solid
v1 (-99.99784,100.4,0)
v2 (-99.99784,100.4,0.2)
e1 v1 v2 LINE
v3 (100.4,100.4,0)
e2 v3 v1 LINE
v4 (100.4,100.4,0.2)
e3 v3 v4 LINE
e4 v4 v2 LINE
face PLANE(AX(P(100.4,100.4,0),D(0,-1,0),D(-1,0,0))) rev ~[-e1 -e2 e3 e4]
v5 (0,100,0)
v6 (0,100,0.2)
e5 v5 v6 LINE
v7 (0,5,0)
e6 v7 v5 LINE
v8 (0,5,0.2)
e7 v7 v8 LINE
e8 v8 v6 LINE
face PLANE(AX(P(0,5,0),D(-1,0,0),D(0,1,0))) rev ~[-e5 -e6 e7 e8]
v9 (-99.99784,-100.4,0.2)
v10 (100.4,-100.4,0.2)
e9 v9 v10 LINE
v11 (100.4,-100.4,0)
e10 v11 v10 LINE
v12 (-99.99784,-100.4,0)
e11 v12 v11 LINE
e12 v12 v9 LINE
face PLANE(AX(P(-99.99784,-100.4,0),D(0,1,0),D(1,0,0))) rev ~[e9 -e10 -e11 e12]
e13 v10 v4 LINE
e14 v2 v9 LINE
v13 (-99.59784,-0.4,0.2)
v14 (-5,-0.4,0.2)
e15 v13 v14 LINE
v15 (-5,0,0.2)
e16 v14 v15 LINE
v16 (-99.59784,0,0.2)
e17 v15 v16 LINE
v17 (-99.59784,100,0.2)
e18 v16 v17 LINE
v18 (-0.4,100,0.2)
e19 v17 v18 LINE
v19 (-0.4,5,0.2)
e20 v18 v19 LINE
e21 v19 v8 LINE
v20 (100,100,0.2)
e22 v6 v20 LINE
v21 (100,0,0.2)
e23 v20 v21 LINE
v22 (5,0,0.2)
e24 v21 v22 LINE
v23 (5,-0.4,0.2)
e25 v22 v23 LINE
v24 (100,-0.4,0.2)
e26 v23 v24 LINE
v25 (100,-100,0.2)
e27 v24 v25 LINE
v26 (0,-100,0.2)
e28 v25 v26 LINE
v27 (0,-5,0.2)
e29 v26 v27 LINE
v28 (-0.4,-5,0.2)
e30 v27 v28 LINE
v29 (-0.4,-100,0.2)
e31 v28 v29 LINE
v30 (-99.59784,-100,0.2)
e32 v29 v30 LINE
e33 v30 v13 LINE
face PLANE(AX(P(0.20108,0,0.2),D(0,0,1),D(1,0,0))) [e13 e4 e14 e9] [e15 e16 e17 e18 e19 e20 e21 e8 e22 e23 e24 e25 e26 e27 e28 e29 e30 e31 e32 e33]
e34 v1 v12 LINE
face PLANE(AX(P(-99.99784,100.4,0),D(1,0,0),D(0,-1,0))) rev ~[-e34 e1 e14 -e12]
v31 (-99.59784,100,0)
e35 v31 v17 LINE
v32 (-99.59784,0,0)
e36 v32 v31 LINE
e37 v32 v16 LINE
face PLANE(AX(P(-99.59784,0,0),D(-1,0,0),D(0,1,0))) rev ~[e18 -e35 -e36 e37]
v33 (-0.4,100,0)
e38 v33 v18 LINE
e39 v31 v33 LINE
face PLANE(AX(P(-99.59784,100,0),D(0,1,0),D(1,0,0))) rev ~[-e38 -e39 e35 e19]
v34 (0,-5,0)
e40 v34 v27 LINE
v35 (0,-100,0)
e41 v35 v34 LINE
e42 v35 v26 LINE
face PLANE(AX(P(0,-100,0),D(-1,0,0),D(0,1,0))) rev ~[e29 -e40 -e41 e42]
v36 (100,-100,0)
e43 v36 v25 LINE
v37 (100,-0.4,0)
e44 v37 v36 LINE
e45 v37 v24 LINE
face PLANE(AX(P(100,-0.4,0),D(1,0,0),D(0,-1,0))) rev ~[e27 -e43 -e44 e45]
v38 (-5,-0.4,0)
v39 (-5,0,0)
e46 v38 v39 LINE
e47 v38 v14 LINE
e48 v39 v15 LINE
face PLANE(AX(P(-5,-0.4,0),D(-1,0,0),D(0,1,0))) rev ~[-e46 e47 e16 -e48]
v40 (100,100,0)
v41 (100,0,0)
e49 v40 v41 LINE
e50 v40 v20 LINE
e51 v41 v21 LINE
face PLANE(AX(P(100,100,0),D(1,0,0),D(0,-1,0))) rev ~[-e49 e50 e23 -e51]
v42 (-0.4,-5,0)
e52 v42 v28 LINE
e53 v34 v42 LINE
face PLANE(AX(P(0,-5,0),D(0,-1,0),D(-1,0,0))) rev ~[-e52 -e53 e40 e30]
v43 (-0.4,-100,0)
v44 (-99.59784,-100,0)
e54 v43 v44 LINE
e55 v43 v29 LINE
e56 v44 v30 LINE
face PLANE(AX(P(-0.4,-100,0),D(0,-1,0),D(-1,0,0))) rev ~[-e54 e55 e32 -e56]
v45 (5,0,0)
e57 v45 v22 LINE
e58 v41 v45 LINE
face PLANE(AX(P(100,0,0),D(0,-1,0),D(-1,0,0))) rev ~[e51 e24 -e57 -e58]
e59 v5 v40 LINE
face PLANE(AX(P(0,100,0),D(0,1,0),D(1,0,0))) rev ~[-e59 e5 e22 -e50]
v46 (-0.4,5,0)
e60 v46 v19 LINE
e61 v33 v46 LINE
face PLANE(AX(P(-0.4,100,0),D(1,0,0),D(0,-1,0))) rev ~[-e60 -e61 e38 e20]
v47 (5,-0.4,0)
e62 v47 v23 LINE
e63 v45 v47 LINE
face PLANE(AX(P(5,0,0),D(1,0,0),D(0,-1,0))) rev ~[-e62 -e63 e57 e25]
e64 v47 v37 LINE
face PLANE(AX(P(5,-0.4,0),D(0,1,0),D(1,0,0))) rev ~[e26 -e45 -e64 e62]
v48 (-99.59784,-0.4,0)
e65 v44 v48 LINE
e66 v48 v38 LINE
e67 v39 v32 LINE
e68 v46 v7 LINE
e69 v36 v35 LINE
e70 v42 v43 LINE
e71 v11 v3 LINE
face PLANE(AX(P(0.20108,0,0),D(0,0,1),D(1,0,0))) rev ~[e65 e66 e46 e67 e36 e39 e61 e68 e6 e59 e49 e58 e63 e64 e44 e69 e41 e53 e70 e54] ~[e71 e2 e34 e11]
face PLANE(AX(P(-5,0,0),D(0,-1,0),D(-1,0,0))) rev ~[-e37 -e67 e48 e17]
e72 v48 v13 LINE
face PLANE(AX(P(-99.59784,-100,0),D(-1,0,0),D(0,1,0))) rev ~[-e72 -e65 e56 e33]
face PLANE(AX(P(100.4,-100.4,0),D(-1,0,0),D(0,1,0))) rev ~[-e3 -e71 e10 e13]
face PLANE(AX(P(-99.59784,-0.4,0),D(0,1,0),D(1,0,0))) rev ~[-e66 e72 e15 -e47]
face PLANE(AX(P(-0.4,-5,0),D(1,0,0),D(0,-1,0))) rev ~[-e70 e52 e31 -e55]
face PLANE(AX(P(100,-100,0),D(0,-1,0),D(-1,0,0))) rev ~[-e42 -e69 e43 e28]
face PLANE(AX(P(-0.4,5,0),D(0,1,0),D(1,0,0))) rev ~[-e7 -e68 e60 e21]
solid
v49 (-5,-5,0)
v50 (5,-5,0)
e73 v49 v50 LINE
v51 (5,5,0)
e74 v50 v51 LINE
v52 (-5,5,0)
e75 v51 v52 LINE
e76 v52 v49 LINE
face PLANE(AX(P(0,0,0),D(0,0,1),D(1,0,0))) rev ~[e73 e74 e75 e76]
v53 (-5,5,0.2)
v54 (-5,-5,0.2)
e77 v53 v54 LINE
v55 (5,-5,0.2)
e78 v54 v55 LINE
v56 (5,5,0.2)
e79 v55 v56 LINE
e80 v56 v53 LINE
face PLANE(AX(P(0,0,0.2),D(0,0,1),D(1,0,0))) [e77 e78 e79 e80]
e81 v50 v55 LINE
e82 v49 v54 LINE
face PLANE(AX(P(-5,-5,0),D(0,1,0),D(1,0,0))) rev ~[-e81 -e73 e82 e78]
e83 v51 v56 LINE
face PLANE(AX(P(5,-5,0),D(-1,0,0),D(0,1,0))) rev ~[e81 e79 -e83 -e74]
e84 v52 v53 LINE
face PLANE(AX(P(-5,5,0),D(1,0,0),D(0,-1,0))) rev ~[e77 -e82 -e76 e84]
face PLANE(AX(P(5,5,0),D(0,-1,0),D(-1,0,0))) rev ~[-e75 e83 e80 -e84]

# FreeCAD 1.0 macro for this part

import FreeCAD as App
import Part
import Sketcher


def add_polygon(sketch, points):
    """Adds a closed chain of lines whose ends are joined by coincident constraints."""
    first, n = sketch.GeometryCount, len(points)
    for a, b in zip(points, points[1:] + points[:1]):
        sketch.addGeometry(Part.LineSegment(App.Vector(*a, 0), App.Vector(*b, 0)), False)
    for i in range(n):
        sketch.addConstraint(Sketcher.Constraint("Coincident", first + i, 2, first + (i + 1) % n, 1))

doc = App.newDocument("Part")
params = doc.addObject("Spreadsheet::Sheet", "Params")
for row, (alias, value) in enumerate([
    ("sketch1_width", "95 mm"),
    ("sketch1_width2", "100 mm"),
    ("sketch1_width3", "0.4 mm"),
    ("sketch1_height", "200.8 mm"),
    ("pad1_length", "0.2 mm"),
    ("sketch2_width", "10 mm"),
    ("pad2_length", "0.2 mm"),
], start=1):
    params.set(f"A{row}", alias)
    params.set(f"B{row}", "=" + value)
    params.setAlias(f"B{row}", alias)

body = doc.addObject("PartDesign::Body", "Body")

# Sketch on XY plane
sketch1 = doc.addObject("Sketcher::SketchObject", "Sketch")
body.addObject(sketch1)
sketch1.AttachmentSupport = (doc.XY_Plane, [""])
sketch1.MapMode = "FlatFace"
add_polygon(sketch1, [(-100, -100.4), (100.4, -100.4), (100.4, 100.4), (-100, 100.4)])  # lines 0-3
add_polygon(sketch1, [(5, -0.4), (100, -0.4), (100, -100), (0, -100), (0, -5), (-0.4, -5), (-0.4, -100), (-99.6, -100), (-99.6, -0.4), (-5, -0.4), (-5, 0), (-99.6, 0), (-99.6, 100), (-0.4, 100), (-0.4, 5), (0, 5), (0, 100), (100, 100), (100, 0), (5, 0)])  # lines 4-23
sketch1.addConstraint([
    Sketcher.Constraint("Horizontal", 0),
    Sketcher.Constraint("Vertical", 1),
    Sketcher.Constraint("Horizontal", 2),
    Sketcher.Constraint("Vertical", 3),
    Sketcher.Constraint("Horizontal", 4),
    Sketcher.Constraint("Vertical", 5),
    Sketcher.Constraint("Horizontal", 6),
    Sketcher.Constraint("Vertical", 7),
    Sketcher.Constraint("Horizontal", 8),
    Sketcher.Constraint("Vertical", 9),
    Sketcher.Constraint("Horizontal", 10),
    Sketcher.Constraint("Vertical", 11),
    Sketcher.Constraint("Horizontal", 12),
    Sketcher.Constraint("Vertical", 13),
    Sketcher.Constraint("Horizontal", 14),
    Sketcher.Constraint("Vertical", 15),
    Sketcher.Constraint("Horizontal", 16),
    Sketcher.Constraint("Vertical", 17),
    Sketcher.Constraint("Horizontal", 18),
    Sketcher.Constraint("Vertical", 19),
    Sketcher.Constraint("Horizontal", 20),
    Sketcher.Constraint("Vertical", 21),
    Sketcher.Constraint("Horizontal", 22),
    Sketcher.Constraint("Vertical", 23),
    Sketcher.Constraint("Symmetric", 7, 2, 18, 2, -1, 1),
    Sketcher.Constraint("Symmetric", 13, 2, 22, 2, -1, 1),
    Sketcher.Constraint("Symmetric", 10, 2, 15, 2, -1),
    Sketcher.Constraint("Symmetric", 6, 2, 19, 2, -1),
    Sketcher.Constraint("PointOnObject", 13, 2, -1),
    Sketcher.Constraint("Horizontal", 6, 2, 9, 2),
    Sketcher.Constraint("Horizontal", 4, 2, 11, 2),
    Sketcher.Constraint("Vertical", 9, 2, 16, 2),
    Sketcher.Constraint("Vertical", 5, 2, 20, 2),
    Sketcher.Constraint("Equal", 22, 7),
    Sketcher.Constraint("Equal", 18, 13),
    Sketcher.Constraint("Equal", 20, 15),
    Sketcher.Constraint("DistanceX", 4, 1, 4, 2, 95.0),
    Sketcher.Constraint("DistanceX", 6, 2, 6, 1, 100.0),
    Sketcher.Constraint("DistanceX", 8, 2, 8, 1, 0.4),
    Sketcher.Constraint("DistanceY", 1, 1, 1, 2, 200.8),
    Sketcher.Constraint("DistanceY", 0, 2, 4, 2, 100.0),
    Sketcher.Constraint("DistanceX", -1, 1, 0, 2, 100.4),
    Sketcher.Constraint("DistanceX", 3, 2, 10, 2, 0.4),
    Sketcher.Constraint("DistanceX", 0, 1, 0, 2, 200.39784),
])
sketch1.setExpression("Constraints[60]", "Params.sketch1_width")
sketch1.setExpression("Constraints[61]", "Params.sketch1_width2")
sketch1.setExpression("Constraints[62]", "Params.sketch1_width3")
sketch1.setExpression("Constraints[63]", "Params.sketch1_height")
pad1 = doc.addObject("PartDesign::Pad", "Pad")
body.addObject(pad1)
pad1.Profile = sketch1
pad1.setExpression("Length", "Params.pad1_length")
body2 = doc.addObject("PartDesign::Body", "Body001")

# Sketch on XY plane
sketch2 = doc.addObject("Sketcher::SketchObject", "Sketch001")
body2.addObject(sketch2)
sketch2.AttachmentSupport = (doc.getObject("XY_Plane001"), [""])
sketch2.MapMode = "FlatFace"
add_polygon(sketch2, [(5, -5), (5, 5), (-5, 5), (-5, -5)])  # lines 0-3
sketch2.addConstraint([
    Sketcher.Constraint("Vertical", 0),
    Sketcher.Constraint("Horizontal", 1),
    Sketcher.Constraint("Vertical", 2),
    Sketcher.Constraint("Horizontal", 3),
    Sketcher.Constraint("Symmetric", 0, 2, 2, 2, -1, 1),
    Sketcher.Constraint("Equal", 3, 0),
    Sketcher.Constraint("DistanceX", 1, 2, 1, 1, 10.0),
])
sketch2.setExpression("Constraints[10]", "Params.sketch2_width")
pad2 = doc.addObject("PartDesign::Pad", "Pad001")
body2.addObject(pad2)
pad2.Profile = sketch2
pad2.setExpression("Length", "Params.pad2_length")

doc.recompute()
